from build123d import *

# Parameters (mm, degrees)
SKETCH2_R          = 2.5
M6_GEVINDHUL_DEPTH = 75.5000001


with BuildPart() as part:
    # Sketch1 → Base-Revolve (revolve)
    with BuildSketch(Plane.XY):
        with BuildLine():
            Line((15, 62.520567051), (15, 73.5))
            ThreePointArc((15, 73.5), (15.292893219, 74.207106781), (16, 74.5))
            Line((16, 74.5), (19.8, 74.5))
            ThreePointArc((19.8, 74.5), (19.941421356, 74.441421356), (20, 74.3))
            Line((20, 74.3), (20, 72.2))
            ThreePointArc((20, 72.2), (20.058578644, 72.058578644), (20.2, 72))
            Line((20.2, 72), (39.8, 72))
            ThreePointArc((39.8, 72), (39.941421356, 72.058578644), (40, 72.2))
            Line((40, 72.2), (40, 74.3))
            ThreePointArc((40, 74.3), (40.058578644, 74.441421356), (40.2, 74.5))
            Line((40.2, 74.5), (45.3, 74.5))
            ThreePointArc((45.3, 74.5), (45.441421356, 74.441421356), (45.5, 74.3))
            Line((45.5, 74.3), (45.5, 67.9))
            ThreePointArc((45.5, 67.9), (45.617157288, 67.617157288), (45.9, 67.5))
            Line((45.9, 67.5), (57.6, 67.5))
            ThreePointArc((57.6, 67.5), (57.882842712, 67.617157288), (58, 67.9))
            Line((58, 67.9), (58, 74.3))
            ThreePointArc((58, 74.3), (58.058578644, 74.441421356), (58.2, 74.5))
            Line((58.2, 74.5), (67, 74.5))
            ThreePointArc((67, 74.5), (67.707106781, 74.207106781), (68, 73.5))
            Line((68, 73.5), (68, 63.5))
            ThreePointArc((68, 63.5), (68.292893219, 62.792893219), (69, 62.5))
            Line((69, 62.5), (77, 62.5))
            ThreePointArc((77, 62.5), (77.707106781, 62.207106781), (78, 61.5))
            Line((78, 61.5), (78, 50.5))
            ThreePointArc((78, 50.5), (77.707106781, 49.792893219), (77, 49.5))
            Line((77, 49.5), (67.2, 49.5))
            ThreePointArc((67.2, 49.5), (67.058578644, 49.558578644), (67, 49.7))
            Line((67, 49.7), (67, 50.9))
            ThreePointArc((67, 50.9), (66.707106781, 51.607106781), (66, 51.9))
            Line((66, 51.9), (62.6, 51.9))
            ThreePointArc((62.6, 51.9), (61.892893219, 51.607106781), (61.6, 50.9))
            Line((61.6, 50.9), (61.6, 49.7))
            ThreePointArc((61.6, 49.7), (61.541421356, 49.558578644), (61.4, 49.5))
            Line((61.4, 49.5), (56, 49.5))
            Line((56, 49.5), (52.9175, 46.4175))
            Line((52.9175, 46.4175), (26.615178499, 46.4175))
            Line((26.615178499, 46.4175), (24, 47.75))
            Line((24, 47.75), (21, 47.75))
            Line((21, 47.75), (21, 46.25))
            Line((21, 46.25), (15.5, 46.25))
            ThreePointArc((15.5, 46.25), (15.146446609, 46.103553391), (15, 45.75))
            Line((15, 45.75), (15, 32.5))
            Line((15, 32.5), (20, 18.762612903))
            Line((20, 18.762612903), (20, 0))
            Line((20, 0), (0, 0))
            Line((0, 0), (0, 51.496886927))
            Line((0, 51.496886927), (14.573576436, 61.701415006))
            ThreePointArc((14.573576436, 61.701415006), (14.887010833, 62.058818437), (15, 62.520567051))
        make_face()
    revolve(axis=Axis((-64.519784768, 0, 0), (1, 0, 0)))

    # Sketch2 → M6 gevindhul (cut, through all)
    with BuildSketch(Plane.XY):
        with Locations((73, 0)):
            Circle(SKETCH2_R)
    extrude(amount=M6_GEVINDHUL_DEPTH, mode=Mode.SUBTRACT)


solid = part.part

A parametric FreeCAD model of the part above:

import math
import FreeCAD as App
import Part
import Sketcher

V = App.Vector
Q = App.Units.Quantity

doc = App.newDocument("Part")
body = doc.addObject("PartDesign::Body", "Body")

# Sketch on XY plane
sketch1 = body.newObject("Sketcher::SketchObject", "Sketch")
sketch1.AttachmentSupport = (doc.getObject("XY_Plane"), [""])
sketch1.MapMode = "FlatFace"
sketch1.addGeometry(Part.LineSegment(V(15, 73.5, 0), V(15, 62.52, 0)), False)
sketch1.addGeometry(Part.ArcOfCircle(Part.Circle(V(14, 62.52, 0), V(0, 0, 1), 1), math.radians(-55), math.radians(0)), False)
sketch1.addGeometry(Part.LineSegment(V(14.57, 61.7, 0), V(0, 51.5, 0)), False)
sketch1.addGeometry(Part.LineSegment(V(0, 51.5, 0), V(0, 0, 0)), False)
sketch1.addGeometry(Part.LineSegment(V(0, 0, 0), V(20, 0, 0)), False)
sketch1.addGeometry(Part.LineSegment(V(20, 0, 0), V(20, 18.76, 0)), False)
sketch1.addGeometry(Part.LineSegment(V(20, 18.76, 0), V(15, 32.5, 0)), False)
sketch1.addGeometry(Part.LineSegment(V(15, 32.5, 0), V(15, 45.75, 0)), False)
sketch1.addGeometry(Part.ArcOfCircle(Part.Circle(V(15.5, 45.75, 0), V(0, 0, 1), 0.5), math.radians(90), math.radians(180)), False)
sketch1.addGeometry(Part.LineSegment(V(15.5, 46.25, 0), V(21, 46.25, 0)), False)
sketch1.addGeometry(Part.LineSegment(V(21, 46.25, 0), V(21, 47.75, 0)), False)
sketch1.addGeometry(Part.LineSegment(V(21, 47.75, 0), V(24, 47.75, 0)), False)
sketch1.addGeometry(Part.LineSegment(V(24, 47.75, 0), V(26.62, 46.42, 0)), False)
sketch1.addGeometry(Part.LineSegment(V(26.62, 46.42, 0), V(52.92, 46.42, 0)), False)
sketch1.addGeometry(Part.LineSegment(V(52.92, 46.42, 0), V(56, 49.5, 0)), False)
sketch1.addGeometry(Part.LineSegment(V(56, 49.5, 0), V(61.4, 49.5, 0)), False)
sketch1.addGeometry(Part.ArcOfCircle(Part.Circle(V(61.4, 49.7, 0), V(0, 0, 1), 0.2), math.radians(-90), math.radians(0)), False)
sketch1.addGeometry(Part.LineSegment(V(61.6, 49.7, 0), V(61.6, 50.9, 0)), False)
sketch1.addGeometry(Part.ArcOfCircle(Part.Circle(V(62.6, 50.9, 0), V(0, 0, 1), 1), math.radians(90), math.radians(180)), False)
sketch1.addGeometry(Part.LineSegment(V(62.6, 51.9, 0), V(66, 51.9, 0)), False)
sketch1.addGeometry(Part.ArcOfCircle(Part.Circle(V(66, 50.9, 0), V(0, 0, 1), 1), math.radians(0), math.radians(90)), False)
sketch1.addGeometry(Part.LineSegment(V(67, 50.9, 0), V(67, 49.7, 0)), False)
sketch1.addGeometry(Part.ArcOfCircle(Part.Circle(V(67.2, 49.7, 0), V(0, 0, 1), 0.2), math.radians(-180), math.radians(-90)), False)
sketch1.addGeometry(Part.LineSegment(V(67.2, 49.5, 0), V(77, 49.5, 0)), False)
sketch1.addGeometry(Part.ArcOfCircle(Part.Circle(V(77, 50.5, 0), V(0, 0, 1), 1), math.radians(-90), math.radians(0)), False)
sketch1.addGeometry(Part.LineSegment(V(78, 50.5, 0), V(78, 61.5, 0)), False)
sketch1.addGeometry(Part.ArcOfCircle(Part.Circle(V(77, 61.5, 0), V(0, 0, 1), 1), math.radians(0), math.radians(90)), False)
sketch1.addGeometry(Part.LineSegment(V(77, 62.5, 0), V(69, 62.5, 0)), False)
sketch1.addGeometry(Part.ArcOfCircle(Part.Circle(V(69, 63.5, 0), V(0, 0, 1), 1), math.radians(-180), math.radians(-90)), False)
sketch1.addGeometry(Part.LineSegment(V(68, 63.5, 0), V(68, 73.5, 0)), False)
sketch1.addGeometry(Part.ArcOfCircle(Part.Circle(V(67, 73.5, 0), V(0, 0, 1), 1), math.radians(0), math.radians(90)), False)
sketch1.addGeometry(Part.LineSegment(V(67, 74.5, 0), V(58.2, 74.5, 0)), False)
sketch1.addGeometry(Part.ArcOfCircle(Part.Circle(V(58.2, 74.3, 0), V(0, 0, 1), 0.2), math.radians(90), math.radians(180)), False)
sketch1.addGeometry(Part.LineSegment(V(58, 74.3, 0), V(58, 67.9, 0)), False)
sketch1.addGeometry(Part.ArcOfCircle(Part.Circle(V(57.6, 67.9, 0), V(0, 0, 1), 0.4), math.radians(-90), math.radians(0)), False)
sketch1.addGeometry(Part.LineSegment(V(57.6, 67.5, 0), V(45.9, 67.5, 0)), False)
sketch1.addGeometry(Part.ArcOfCircle(Part.Circle(V(45.9, 67.9, 0), V(0, 0, 1), 0.4), math.radians(-180), math.radians(-90)), False)
sketch1.addGeometry(Part.LineSegment(V(45.5, 67.9, 0), V(45.5, 74.3, 0)), False)
sketch1.addGeometry(Part.ArcOfCircle(Part.Circle(V(45.3, 74.3, 0), V(0, 0, 1), 0.2), math.radians(0), math.radians(90)), False)
sketch1.addGeometry(Part.LineSegment(V(45.3, 74.5, 0), V(40.2, 74.5, 0)), False)
sketch1.addGeometry(Part.ArcOfCircle(Part.Circle(V(40.2, 74.3, 0), V(0, 0, 1), 0.2), math.radians(90), math.radians(180)), False)
sketch1.addGeometry(Part.LineSegment(V(40, 74.3, 0), V(40, 72.2, 0)), False)
sketch1.addGeometry(Part.ArcOfCircle(Part.Circle(V(39.8, 72.2, 0), V(0, 0, 1), 0.2), math.radians(-90), math.radians(0)), False)
sketch1.addGeometry(Part.LineSegment(V(39.8, 72, 0), V(20.2, 72, 0)), False)
sketch1.addGeometry(Part.ArcOfCircle(Part.Circle(V(20.2, 72.2, 0), V(0, 0, 1), 0.2), math.radians(-180), math.radians(-90)), False)
sketch1.addGeometry(Part.LineSegment(V(20, 72.2, 0), V(20, 74.3, 0)), False)
sketch1.addGeometry(Part.ArcOfCircle(Part.Circle(V(19.8, 74.3, 0), V(0, 0, 1), 0.2), math.radians(0), math.radians(90)), False)
sketch1.addGeometry(Part.LineSegment(V(19.8, 74.5, 0), V(16, 74.5, 0)), False)
sketch1.addGeometry(Part.ArcOfCircle(Part.Circle(V(16, 73.5, 0), V(0, 0, 1), 1), math.radians(90), math.radians(180)), False)
sketch1.addConstraint(Sketcher.Constraint("Tangent", 0, 2, 1, 2))
sketch1.addConstraint(Sketcher.Constraint("Tangent", 1, 1, 2, 1))
sketch1.addConstraint(Sketcher.Constraint("Coincident", 2, 2, 3, 1))
sketch1.addConstraint(Sketcher.Constraint("Coincident", 3, 2, 4, 1))
sketch1.addConstraint(Sketcher.Constraint("Coincident", 4, 2, 5, 1))
sketch1.addConstraint(Sketcher.Constraint("Coincident", 5, 2, 6, 1))
sketch1.addConstraint(Sketcher.Constraint("Coincident", 6, 2, 7, 1))
sketch1.addConstraint(Sketcher.Constraint("Tangent", 7, 2, 8, 2))
sketch1.addConstraint(Sketcher.Constraint("Tangent", 8, 1, 9, 1))
sketch1.addConstraint(Sketcher.Constraint("Coincident", 9, 2, 10, 1))
sketch1.addConstraint(Sketcher.Constraint("Coincident", 10, 2, 11, 1))
sketch1.addConstraint(Sketcher.Constraint("Coincident", 11, 2, 12, 1))
sketch1.addConstraint(Sketcher.Constraint("Coincident", 12, 2, 13, 1))
sketch1.addConstraint(Sketcher.Constraint("Coincident", 13, 2, 14, 1))
sketch1.addConstraint(Sketcher.Constraint("Coincident", 14, 2, 15, 1))
sketch1.addConstraint(Sketcher.Constraint("Tangent", 15, 2, 16, 1))
sketch1.addConstraint(Sketcher.Constraint("Tangent", 16, 2, 17, 1))
sketch1.addConstraint(Sketcher.Constraint("Tangent", 17, 2, 18, 2))
sketch1.addConstraint(Sketcher.Constraint("Tangent", 18, 1, 19, 1))
sketch1.addConstraint(Sketcher.Constraint("Tangent", 19, 2, 20, 2))
sketch1.addConstraint(Sketcher.Constraint("Tangent", 20, 1, 21, 1))
sketch1.addConstraint(Sketcher.Constraint("Tangent", 21, 2, 22, 1))
sketch1.addConstraint(Sketcher.Constraint("Tangent", 22, 2, 23, 1))
sketch1.addConstraint(Sketcher.Constraint("Tangent", 23, 2, 24, 1))
sketch1.addConstraint(Sketcher.Constraint("Tangent", 24, 2, 25, 1))
sketch1.addConstraint(Sketcher.Constraint("Tangent", 25, 2, 26, 1))
sketch1.addConstraint(Sketcher.Constraint("Tangent", 26, 2, 27, 1))
sketch1.addConstraint(Sketcher.Constraint("Tangent", 27, 2, 28, 2))
sketch1.addConstraint(Sketcher.Constraint("Tangent", 28, 1, 29, 1))
sketch1.addConstraint(Sketcher.Constraint("Tangent", 29, 2, 30, 1))
sketch1.addConstraint(Sketcher.Constraint("Tangent", 30, 2, 31, 1))
sketch1.addConstraint(Sketcher.Constraint("Tangent", 31, 2, 32, 1))
sketch1.addConstraint(Sketcher.Constraint("Tangent", 32, 2, 33, 1))
sketch1.addConstraint(Sketcher.Constraint("Tangent", 33, 2, 34, 2))
sketch1.addConstraint(Sketcher.Constraint("Tangent", 34, 1, 35, 1))
sketch1.addConstraint(Sketcher.Constraint("Tangent", 35, 2, 36, 2))
sketch1.addConstraint(Sketcher.Constraint("Tangent", 36, 1, 37, 1))
sketch1.addConstraint(Sketcher.Constraint("Tangent", 37, 2, 38, 1))
sketch1.addConstraint(Sketcher.Constraint("Tangent", 38, 2, 39, 1))
sketch1.addConstraint(Sketcher.Constraint("Tangent", 39, 2, 40, 1))
sketch1.addConstraint(Sketcher.Constraint("Tangent", 40, 2, 41, 1))
sketch1.addConstraint(Sketcher.Constraint("Tangent", 41, 2, 42, 2))
sketch1.addConstraint(Sketcher.Constraint("Tangent", 42, 1, 43, 1))
sketch1.addConstraint(Sketcher.Constraint("Tangent", 43, 2, 44, 2))
sketch1.addConstraint(Sketcher.Constraint("Tangent", 44, 1, 45, 1))
sketch1.addConstraint(Sketcher.Constraint("Tangent", 45, 2, 46, 1))
sketch1.addConstraint(Sketcher.Constraint("Tangent", 46, 2, 47, 1))
sketch1.addConstraint(Sketcher.Constraint("Tangent", 47, 2, 48, 1))
sketch1.addConstraint(Sketcher.Constraint("Tangent", 48, 2, 0, 1))
sketch1.addConstraint(Sketcher.Constraint("Vertical", 0))
sketch1.addConstraint(Sketcher.Constraint("Vertical", 3))
sketch1.addConstraint(Sketcher.Constraint("Horizontal", 4))
sketch1.addConstraint(Sketcher.Constraint("Vertical", 5))
sketch1.addConstraint(Sketcher.Constraint("Vertical", 7))
sketch1.addConstraint(Sketcher.Constraint("Horizontal", 9))
sketch1.addConstraint(Sketcher.Constraint("Vertical", 10))
sketch1.addConstraint(Sketcher.Constraint("Horizontal", 11))
sketch1.addConstraint(Sketcher.Constraint("Horizontal", 13))
sketch1.addConstraint(Sketcher.Constraint("Horizontal", 15))
sketch1.addConstraint(Sketcher.Constraint("Vertical", 17))
sketch1.addConstraint(Sketcher.Constraint("Horizontal", 19))
sketch1.addConstraint(Sketcher.Constraint("Vertical", 21))
sketch1.addConstraint(Sketcher.Constraint("Horizontal", 23))
sketch1.addConstraint(Sketcher.Constraint("Vertical", 25))
sketch1.addConstraint(Sketcher.Constraint("Horizontal", 27))
sketch1.addConstraint(Sketcher.Constraint("Vertical", 29))
sketch1.addConstraint(Sketcher.Constraint("Horizontal", 31))
sketch1.addConstraint(Sketcher.Constraint("Vertical", 33))
sketch1.addConstraint(Sketcher.Constraint("Horizontal", 35))
sketch1.addConstraint(Sketcher.Constraint("Vertical", 37))
sketch1.addConstraint(Sketcher.Constraint("Horizontal", 39))
sketch1.addConstraint(Sketcher.Constraint("Vertical", 41))
sketch1.addConstraint(Sketcher.Constraint("Horizontal", 43))
sketch1.addConstraint(Sketcher.Constraint("Vertical", 45))
sketch1.addConstraint(Sketcher.Constraint("Horizontal", 47))
sketch1.addConstraint(Sketcher.Constraint("Coincident", 3, 2, -1, 1))
sketch1.addConstraint(Sketcher.Constraint("Equal", 1, 18))
sketch1.addConstraint(Sketcher.Constraint("Equal", 18, 20))
sketch1.addConstraint(Sketcher.Constraint("Equal", 16, 22))
sketch1.addConstraint(Sketcher.Constraint("Equal", 20, 24))
sketch1.addConstraint(Sketcher.Constraint("Equal", 24, 26))
sketch1.addConstraint(Sketcher.Constraint("Equal", 26, 28))
sketch1.addConstraint(Sketcher.Constraint("Equal", 28, 30))
sketch1.addConstraint(Sketcher.Constraint("Equal", 22, 32))
sketch1.addConstraint(Sketcher.Constraint("Equal", 34, 36))
sketch1.addConstraint(Sketcher.Constraint("Equal", 32, 38))
sketch1.addConstraint(Sketcher.Constraint("Equal", 38, 40))
sketch1.addConstraint(Sketcher.Constraint("Equal", 40, 42))
sketch1.addConstraint(Sketcher.Constraint("Equal", 42, 44))
sketch1.addConstraint(Sketcher.Constraint("Equal", 44, 46))
sketch1.addConstraint(Sketcher.Constraint("Equal", 30, 48))
sketch1.addConstraint(Sketcher.Constraint("Horizontal", 16, 3, 22, 3))
sketch1.addConstraint(Sketcher.Constraint("Horizontal", 32, 3, 38, 3))
sketch1.addConstraint(Sketcher.Constraint("Horizontal", 40, 3, 46, 3))
sketch1.addConstraint(Sketcher.Constraint("Vertical", 0, 2, 6, 2))
sketch1.addConstraint(Sketcher.Constraint("Vertical", 30, 3, 20, 1))
sketch1.addConstraint(Sketcher.Constraint("Vertical", 5, 2, 44, 1))
sketch1.addConstraint(Sketcher.Constraint("Radius", 1, Q("1 mm")))
sketch1.addConstraint(Sketcher.Constraint("Radius", 8, Q("0.5 mm")))
sketch1.addConstraint(Sketcher.Constraint("Radius", 16, Q("0.2 mm")))
sketch1.addConstraint(Sketcher.Constraint("Radius", 34, Q("0.4 mm")))
sketch1.addConstraint(Sketcher.Constraint("DistanceX", 4, 1, 4, 2, Q("20 mm")))
sketch1.addConstraint(Sketcher.Constraint("DistanceX", 11, 1, 11, 2, Q("3 mm")))
sketch1.addConstraint(Sketcher.Constraint("DistanceX", 27, 2, 27, 1, Q("8 mm")))
sketch1.addConstraint(Sketcher.Constraint("DistanceY", 25, 1, 25, 2, Q("11 mm")))
sketch1.addConstraint(Sketcher.Constraint("DistanceY", 29, 1, 29, 2, Q("10 mm")))
sketch1.addConstraint(Sketcher.Constraint("Angle", 2, Q("-145 deg")))
sketch1.addConstraint(Sketcher.Constraint("Angle", 6, Q("110 deg")))
sketch1.addConstraint(Sketcher.Constraint("Angle", 12, Q("-27 deg")))
sketch1.addConstraint(Sketcher.Constraint("Angle", 14, Q("45 deg")))
sketch1.addConstraint(Sketcher.Constraint("DistanceX", 9, 1, 9, 2, Q("5.5 mm")))
sketch1.addConstraint(Sketcher.Constraint("DistanceX", 15, 1, 15, 2, Q("5.4 mm")))
sketch1.addConstraint(Sketcher.Constraint("DistanceX", 19, 1, 19, 2, Q("3.4 mm")))
sketch1.addConstraint(Sketcher.Constraint("DistanceX", 31, 2, 31, 1, Q("8.8 mm")))
sketch1.addConstraint(Sketcher.Constraint("DistanceX", 35, 2, 35, 1, Q("11.7 mm")))
sketch1.addConstraint(Sketcher.Constraint("DistanceX", 39, 2, 39, 1, Q("5.1 mm")))
sketch1.addConstraint(Sketcher.Constraint("DistanceX", 43, 2, 43, 1, Q("19.6 mm")))
sketch1.addConstraint(Sketcher.Constraint("DistanceX", 47, 2, 47, 1, Q("3.8 mm")))
sketch1.addConstraint(Sketcher.Constraint("DistanceY", 10, 1, 10, 2, Q("1.5 mm")))
sketch1.addConstraint(Sketcher.Constraint("DistanceY", 17, 1, 17, 2, Q("1.2 mm")))
sketch1.addConstraint(Sketcher.Constraint("DistanceY", 33, 2, 33, 1, Q("6.4 mm")))
sketch1.addConstraint(Sketcher.Constraint("DistanceY", 41, 2, 41, 1, Q("2.1 mm")))
sketch1.addConstraint(Sketcher.Constraint("DistanceY", -1, 1, 42, 1, Q("72 mm")))
sketch1.addConstraint(Sketcher.Constraint("DistanceY", 7, 1, 7, 2, Q("13.25 mm")))
sketch1.addConstraint(Sketcher.Constraint("DistanceY", -1, 1, 6, 2, Q("32.5 mm")))
sketch1.addConstraint(Sketcher.Constraint("DistanceX", 13, 1, 13, 2, Q("26.302322 mm")))
sketch1.addConstraint(Sketcher.Constraint("DistanceY", 0, 2, 0, 1, Q("10.979433 mm")))
revolution = body.newObject("PartDesign::Revolution", "Revolution")
revolution.Profile = sketch1
revolution.ReferenceAxis = (sketch1, ["H_Axis"])
revolution.Angle = 360

# Sketch on XY plane
sketch2 = body.newObject("Sketcher::SketchObject", "Sketch001")
sketch2.AttachmentSupport = (doc.getObject("XY_Plane"), [""])
sketch2.MapMode = "FlatFace"
sketch2.addGeometry(Part.Circle(V(73, 0, 0), V(0, 0, 1), 2.5), False)
sketch2.addConstraint(Sketcher.Constraint("PointOnObject", 0, 3, -1))
sketch2.addConstraint(Sketcher.Constraint("Diameter", 0, Q("5 mm")))
sketch2.addConstraint(Sketcher.Constraint("DistanceX", -1, 1, 0, 3, Q("73 mm")))
pocket1 = body.newObject("PartDesign::Pocket", "Pocket")
pocket1.Profile = sketch2
pocket1.Type = "ThroughAll"
pocket1.Reversed = True

doc.recompute()
